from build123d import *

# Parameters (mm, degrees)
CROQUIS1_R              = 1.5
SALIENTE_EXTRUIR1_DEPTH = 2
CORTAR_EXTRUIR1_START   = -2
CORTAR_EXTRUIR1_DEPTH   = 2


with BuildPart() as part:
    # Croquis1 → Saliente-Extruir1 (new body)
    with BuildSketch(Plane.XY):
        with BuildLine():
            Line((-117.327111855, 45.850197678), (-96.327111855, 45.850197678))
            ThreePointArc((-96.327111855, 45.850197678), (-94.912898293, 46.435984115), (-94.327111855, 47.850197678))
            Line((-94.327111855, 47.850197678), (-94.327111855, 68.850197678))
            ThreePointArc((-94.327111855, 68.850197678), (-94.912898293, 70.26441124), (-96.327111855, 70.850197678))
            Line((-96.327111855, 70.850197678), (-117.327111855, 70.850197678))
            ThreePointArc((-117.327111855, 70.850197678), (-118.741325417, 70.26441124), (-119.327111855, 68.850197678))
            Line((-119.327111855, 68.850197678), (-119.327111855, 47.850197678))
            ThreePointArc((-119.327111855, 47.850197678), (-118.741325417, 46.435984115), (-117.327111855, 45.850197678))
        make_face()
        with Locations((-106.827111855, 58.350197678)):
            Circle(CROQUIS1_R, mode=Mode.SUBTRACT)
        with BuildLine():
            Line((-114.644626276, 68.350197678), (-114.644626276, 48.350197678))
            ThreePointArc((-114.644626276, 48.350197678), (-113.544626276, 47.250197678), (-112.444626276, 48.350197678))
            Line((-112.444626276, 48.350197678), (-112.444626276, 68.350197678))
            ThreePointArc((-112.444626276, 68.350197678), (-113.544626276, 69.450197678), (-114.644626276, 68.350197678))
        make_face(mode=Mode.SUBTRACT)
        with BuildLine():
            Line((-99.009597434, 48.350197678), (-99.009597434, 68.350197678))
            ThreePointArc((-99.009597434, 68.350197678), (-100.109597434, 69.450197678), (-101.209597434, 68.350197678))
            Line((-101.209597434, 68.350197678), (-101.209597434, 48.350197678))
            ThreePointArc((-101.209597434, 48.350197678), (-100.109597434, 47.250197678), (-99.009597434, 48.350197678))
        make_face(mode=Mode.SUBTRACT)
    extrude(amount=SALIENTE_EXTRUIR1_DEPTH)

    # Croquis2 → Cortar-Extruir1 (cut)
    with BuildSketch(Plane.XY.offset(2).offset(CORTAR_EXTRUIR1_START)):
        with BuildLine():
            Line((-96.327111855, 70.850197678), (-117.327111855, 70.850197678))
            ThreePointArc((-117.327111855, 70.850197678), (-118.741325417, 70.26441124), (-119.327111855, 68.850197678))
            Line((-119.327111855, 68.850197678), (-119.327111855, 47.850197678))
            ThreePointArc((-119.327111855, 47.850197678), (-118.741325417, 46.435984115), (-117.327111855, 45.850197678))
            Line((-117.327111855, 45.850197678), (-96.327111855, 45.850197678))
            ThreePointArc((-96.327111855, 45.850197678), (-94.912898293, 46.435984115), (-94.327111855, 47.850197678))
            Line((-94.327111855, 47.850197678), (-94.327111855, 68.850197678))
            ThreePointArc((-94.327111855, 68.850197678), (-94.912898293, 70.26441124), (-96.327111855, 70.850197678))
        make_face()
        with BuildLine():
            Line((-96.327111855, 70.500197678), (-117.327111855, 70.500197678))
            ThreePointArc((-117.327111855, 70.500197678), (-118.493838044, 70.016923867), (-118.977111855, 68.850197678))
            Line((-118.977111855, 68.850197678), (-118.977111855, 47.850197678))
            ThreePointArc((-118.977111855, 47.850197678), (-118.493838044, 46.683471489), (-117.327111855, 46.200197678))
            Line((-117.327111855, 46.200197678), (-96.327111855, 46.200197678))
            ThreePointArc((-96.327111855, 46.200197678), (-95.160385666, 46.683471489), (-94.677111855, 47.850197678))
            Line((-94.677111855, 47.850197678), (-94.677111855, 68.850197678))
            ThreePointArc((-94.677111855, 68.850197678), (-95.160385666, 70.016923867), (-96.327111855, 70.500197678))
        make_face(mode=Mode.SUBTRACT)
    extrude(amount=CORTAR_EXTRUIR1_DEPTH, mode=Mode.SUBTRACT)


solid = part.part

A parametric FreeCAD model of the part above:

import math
import FreeCAD as App
import Part
import Sketcher

doc = App.newDocument("Part")
body = doc.addObject("PartDesign::Body", "Body")

# Sketch on XY plane
sketch1 = doc.addObject("Sketcher::SketchObject", "Sketch")
body.addObject(sketch1)
sketch1.AttachmentSupport = (doc.XY_Plane, [""])
sketch1.MapMode = "FlatFace"
sketch1.addGeometry([
    Part.LineSegment(App.Vector(-117.327112, 45.850198, 0), App.Vector(-96.327112, 45.850198, 0)),  # 0
    Part.ArcOfCircle(Part.Circle(App.Vector(-96.327112, 47.850198, 0), App.Vector(0, 0, 1), 2), math.radians(-90), math.radians(0)),  # 1
    Part.LineSegment(App.Vector(-94.327112, 47.850198, 0), App.Vector(-94.327112, 68.850198, 0)),  # 2
    Part.ArcOfCircle(Part.Circle(App.Vector(-96.327112, 68.850198, 0), App.Vector(0, 0, 1), 2), math.radians(0), math.radians(90)),  # 3
    Part.LineSegment(App.Vector(-96.327112, 70.850198, 0), App.Vector(-117.327112, 70.850198, 0)),  # 4
    Part.ArcOfCircle(Part.Circle(App.Vector(-117.327112, 68.850198, 0), App.Vector(0, 0, 1), 2), math.radians(90), math.radians(180)),  # 5
    Part.LineSegment(App.Vector(-119.327112, 68.850198, 0), App.Vector(-119.327112, 47.850198, 0)),  # 6
    Part.ArcOfCircle(Part.Circle(App.Vector(-117.327112, 47.850198, 0), App.Vector(0, 0, 1), 2), math.radians(180), math.radians(270)),  # 7
    Part.LineSegment(App.Vector(-114.644626, 48.350198, 0), App.Vector(-114.644626, 68.350198, 0)),  # 8
    Part.ArcOfCircle(Part.Circle(App.Vector(-113.544626, 68.350198, 0), App.Vector(0, 0, 1), 1.1), math.radians(0), math.radians(180)),  # 9
    Part.LineSegment(App.Vector(-112.444626, 68.350198, 0), App.Vector(-112.444626, 48.350198, 0)),  # 10
    Part.ArcOfCircle(Part.Circle(App.Vector(-113.544626, 48.350198, 0), App.Vector(0, 0, 1), 1.1), math.radians(180), math.radians(360)),  # 11
    Part.Circle(App.Vector(-106.827112, 58.350198, 0), App.Vector(0, 0, 1), 1.5),  # 12
    Part.LineSegment(App.Vector(-99.009597, 68.350198, 0), App.Vector(-99.009597, 48.350198, 0)),  # 13
    Part.ArcOfCircle(Part.Circle(App.Vector(-100.109597, 48.350198, 0), App.Vector(0, 0, 1), 1.1), math.radians(180), math.radians(360)),  # 14
    Part.LineSegment(App.Vector(-101.209597, 48.350198, 0), App.Vector(-101.209597, 68.350198, 0)),  # 15
    Part.ArcOfCircle(Part.Circle(App.Vector(-100.109597, 68.350198, 0), App.Vector(0, 0, 1), 1.1), math.radians(0), math.radians(180)),  # 16
], False)
sketch1.addConstraint([
    Sketcher.Constraint("Tangent", 0, 2, 1, 1),
    Sketcher.Constraint("Tangent", 1, 2, 2, 1),
    Sketcher.Constraint("Tangent", 2, 2, 3, 1),
    Sketcher.Constraint("Tangent", 3, 2, 4, 1),
    Sketcher.Constraint("Tangent", 4, 2, 5, 1),
    Sketcher.Constraint("Tangent", 5, 2, 6, 1),
    Sketcher.Constraint("Tangent", 6, 2, 7, 1),
    Sketcher.Constraint("Tangent", 7, 2, 0, 1),
    Sketcher.Constraint("Tangent", 8, 2, 9, 2),
    Sketcher.Constraint("Tangent", 9, 1, 10, 1),
    Sketcher.Constraint("Tangent", 10, 2, 11, 2),
    Sketcher.Constraint("Tangent", 11, 1, 8, 1),
    Sketcher.Constraint("Tangent", 13, 2, 14, 2),
    Sketcher.Constraint("Tangent", 14, 1, 15, 1),
    Sketcher.Constraint("Tangent", 15, 2, 16, 2),
    Sketcher.Constraint("Tangent", 16, 1, 13, 1),
    Sketcher.Constraint("Horizontal", 0),
    Sketcher.Constraint("Vertical", 2),
    Sketcher.Constraint("Horizontal", 4),
    Sketcher.Constraint("Vertical", 6),
    Sketcher.Constraint("Vertical", 8),
    Sketcher.Constraint("Vertical", 10),
    Sketcher.Constraint("Vertical", 13),
    Sketcher.Constraint("Vertical", 15),
    Sketcher.Constraint("Equal", 1, 3),
    Sketcher.Constraint("Equal", 3, 5),
    Sketcher.Constraint("Equal", 5, 7),
    Sketcher.Constraint("Equal", 11, 14),
    Sketcher.Constraint("Horizontal", 11, 3, 14, 3),
    Sketcher.Constraint("Horizontal", 9, 3, 16, 3),
    Sketcher.Constraint("Equal", 4, 2),
    Sketcher.Constraint("Diameter", 12, 3.0),
    Sketcher.Constraint("Radius", 1, 2.0),
    Sketcher.Constraint("Radius", 9, 1.1),
    Sketcher.Constraint("DistanceX", 0, 1, 0, 2, 21.0),
    Sketcher.Constraint("DistanceY", 8, 1, 8, 2, 20.0),
    Sketcher.Constraint("DistanceY", 12, 3, 9, 3, 10.0),
    Sketcher.Constraint("DistanceY", 9, 3, 5, 3, 0.5),
    Sketcher.Constraint("DistanceX", 12, 3, 3, 3, 10.5),
    Sketcher.Constraint("DistanceX", 1, 3, -1, 1, 96.327112),
    Sketcher.Constraint("DistanceX", 11, 3, 14, 3, 13.435029),
    Sketcher.Constraint("DistanceY", -1, 1, 1, 3, 47.850198),
    Sketcher.Constraint("DistanceX", 9, 3, -1, 1, 113.544626),
])
pad1 = doc.addObject("PartDesign::Pad", "Pad")
body.addObject(pad1)
pad1.Profile = sketch1
pad1.Length = 2

# Sketch on XY plane
sketch2 = doc.addObject("Sketcher::SketchObject", "Sketch001")
body.addObject(sketch2)
sketch2.AttachmentSupport = (doc.XY_Plane, [""])
sketch2.MapMode = "FlatFace"
sketch2.addGeometry([
    Part.LineSegment(App.Vector(-96.327112, 70.850198, 0), App.Vector(-117.327112, 70.850198, 0)),  # 0
    Part.ArcOfCircle(Part.Circle(App.Vector(-117.327112, 68.850198, 0), App.Vector(0, 0, 1), 2), math.radians(90), math.radians(180)),  # 1
    Part.LineSegment(App.Vector(-119.327112, 68.850198, 0), App.Vector(-119.327112, 47.850198, 0)),  # 2
    Part.ArcOfCircle(Part.Circle(App.Vector(-117.327112, 47.850198, 0), App.Vector(0, 0, 1), 2), math.radians(180), math.radians(270)),  # 3
    Part.LineSegment(App.Vector(-117.327112, 45.850198, 0), App.Vector(-96.327112, 45.850198, 0)),  # 4
    Part.ArcOfCircle(Part.Circle(App.Vector(-96.327112, 47.850198, 0), App.Vector(0, 0, 1), 2), math.radians(-90), math.radians(0)),  # 5
    Part.LineSegment(App.Vector(-94.327112, 47.850198, 0), App.Vector(-94.327112, 68.850198, 0)),  # 6
    Part.ArcOfCircle(Part.Circle(App.Vector(-96.327112, 68.850198, 0), App.Vector(0, 0, 1), 2), math.radians(0), math.radians(90)),  # 7
    Part.LineSegment(App.Vector(-117.327112, 70.500198, 0), App.Vector(-96.327112, 70.500198, 0)),  # 8
    Part.ArcOfCircle(Part.Circle(App.Vector(-96.327112, 68.850198, 0), App.Vector(0, 0, 1), 1.65), math.radians(0), math.radians(90)),  # 9
    Part.LineSegment(App.Vector(-94.677112, 68.850198, 0), App.Vector(-94.677112, 47.850198, 0)),  # 10
    Part.ArcOfCircle(Part.Circle(App.Vector(-96.327112, 47.850198, 0), App.Vector(0, 0, 1), 1.65), math.radians(-90), math.radians(0)),  # 11
    Part.LineSegment(App.Vector(-96.327112, 46.200198, 0), App.Vector(-117.327112, 46.200198, 0)),  # 12
    Part.ArcOfCircle(Part.Circle(App.Vector(-117.327112, 47.850198, 0), App.Vector(0, 0, 1), 1.65), math.radians(180), math.radians(270)),  # 13
    Part.LineSegment(App.Vector(-118.977112, 47.850198, 0), App.Vector(-118.977112, 68.850198, 0)),  # 14
    Part.ArcOfCircle(Part.Circle(App.Vector(-117.327112, 68.850198, 0), App.Vector(0, 0, 1), 1.65), math.radians(90), math.radians(180)),  # 15
], False)
sketch2.addConstraint([
    Sketcher.Constraint("Tangent", 0, 2, 1, 1),
    Sketcher.Constraint("Tangent", 1, 2, 2, 1),
    Sketcher.Constraint("Tangent", 2, 2, 3, 1),
    Sketcher.Constraint("Tangent", 3, 2, 4, 1),
    Sketcher.Constraint("Tangent", 4, 2, 5, 1),
    Sketcher.Constraint("Tangent", 5, 2, 6, 1),
    Sketcher.Constraint("Tangent", 6, 2, 7, 1),
    Sketcher.Constraint("Tangent", 7, 2, 0, 1),
    Sketcher.Constraint("Tangent", 8, 2, 9, 2),
    Sketcher.Constraint("Tangent", 9, 1, 10, 1),
    Sketcher.Constraint("Tangent", 10, 2, 11, 2),
    Sketcher.Constraint("Tangent", 11, 1, 12, 1),
    Sketcher.Constraint("Tangent", 12, 2, 13, 2),
    Sketcher.Constraint("Tangent", 13, 1, 14, 1),
    Sketcher.Constraint("Tangent", 14, 2, 15, 2),
    Sketcher.Constraint("Tangent", 15, 1, 8, 1),
    Sketcher.Constraint("Horizontal", 0),
    Sketcher.Constraint("Vertical", 2),
    Sketcher.Constraint("Horizontal", 4),
    Sketcher.Constraint("Vertical", 6),
    Sketcher.Constraint("Horizontal", 8),
    Sketcher.Constraint("Vertical", 10),
    Sketcher.Constraint("Horizontal", 12),
    Sketcher.Constraint("Vertical", 14),
    Sketcher.Constraint("Coincident", 9, 3, 7, 3),
    Sketcher.Constraint("Coincident", 11, 3, 5, 3),
    Sketcher.Constraint("Coincident", 13, 3, 3, 3),
    Sketcher.Constraint("Equal", 1, 3),
    Sketcher.Constraint("Equal", 3, 5),
    Sketcher.Constraint("Equal", 5, 7),
    Sketcher.Constraint("Equal", 13, 15),
    Sketcher.Constraint("Equal", 12, 2),
    Sketcher.Constraint("Radius", 1, 2.0),
    Sketcher.Constraint("DistanceX", 0, 2, 0, 1, 21.0),
    Sketcher.Constraint("Radius", 9, 1.65),
    Sketcher.Constraint("DistanceX", 1, 3, -1, 1, 117.327112),
    Sketcher.Constraint("DistanceY", -1, 1, 1, 3, 68.850198),
])
pocket1 = doc.addObject("PartDesign::Pocket", "Pocket")
body.addObject(pocket1)
pocket1.Profile = sketch2
pocket1.Length = 2
pocket1.Reversed = True

doc.recompute()
